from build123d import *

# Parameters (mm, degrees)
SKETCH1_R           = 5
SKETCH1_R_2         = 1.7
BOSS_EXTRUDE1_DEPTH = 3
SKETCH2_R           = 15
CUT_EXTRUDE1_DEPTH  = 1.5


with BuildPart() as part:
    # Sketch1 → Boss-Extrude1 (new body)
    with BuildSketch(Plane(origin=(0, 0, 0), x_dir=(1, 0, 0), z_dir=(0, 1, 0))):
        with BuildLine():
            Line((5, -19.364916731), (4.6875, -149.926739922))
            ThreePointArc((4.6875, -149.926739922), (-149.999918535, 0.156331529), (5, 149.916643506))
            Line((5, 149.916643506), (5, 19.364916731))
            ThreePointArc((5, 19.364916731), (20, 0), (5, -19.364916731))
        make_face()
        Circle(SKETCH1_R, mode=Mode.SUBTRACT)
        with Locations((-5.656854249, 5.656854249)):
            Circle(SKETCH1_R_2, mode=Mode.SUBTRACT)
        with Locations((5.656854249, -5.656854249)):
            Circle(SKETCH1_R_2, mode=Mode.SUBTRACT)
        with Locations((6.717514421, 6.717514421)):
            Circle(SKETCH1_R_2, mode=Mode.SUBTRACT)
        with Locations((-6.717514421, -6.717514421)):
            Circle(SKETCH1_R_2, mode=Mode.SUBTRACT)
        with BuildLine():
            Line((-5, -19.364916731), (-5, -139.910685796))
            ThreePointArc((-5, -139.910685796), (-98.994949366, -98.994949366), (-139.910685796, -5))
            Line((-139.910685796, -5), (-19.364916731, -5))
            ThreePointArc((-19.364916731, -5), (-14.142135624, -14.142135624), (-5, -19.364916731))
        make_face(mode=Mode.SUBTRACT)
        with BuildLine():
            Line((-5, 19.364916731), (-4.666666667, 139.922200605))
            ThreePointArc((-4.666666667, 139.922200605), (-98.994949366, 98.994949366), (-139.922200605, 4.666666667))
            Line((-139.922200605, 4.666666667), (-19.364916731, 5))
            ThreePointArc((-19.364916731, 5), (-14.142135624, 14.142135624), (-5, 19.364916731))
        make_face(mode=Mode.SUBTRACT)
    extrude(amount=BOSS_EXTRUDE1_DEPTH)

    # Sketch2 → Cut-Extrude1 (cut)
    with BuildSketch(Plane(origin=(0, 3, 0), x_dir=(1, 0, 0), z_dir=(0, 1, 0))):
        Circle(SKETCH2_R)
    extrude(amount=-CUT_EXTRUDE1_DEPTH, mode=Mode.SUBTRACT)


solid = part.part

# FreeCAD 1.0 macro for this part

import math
import FreeCAD as App
import Part
import Sketcher

V = App.Vector
Q = App.Units.Quantity

doc = App.newDocument("Part")
body = doc.addObject("PartDesign::Body", "Body")

# Sketch on XZ plane
sketch1 = body.newObject("Sketcher::SketchObject", "Sketch")
sketch1.AttachmentSupport = (doc.getObject("XZ_Plane"), [""])
sketch1.MapMode = "FlatFace"
sketch1.addGeometry(Part.LineSegment(V(4.6875, 149.92674, 0), V(5, 19.364917, 0)), False)
sketch1.addGeometry(Part.ArcOfCircle(Part.Circle(V(0, 0, 0), V(0, 0, 1), 20), math.radians(-75.522488), math.radians(75.522488)), False)
sketch1.addGeometry(Part.LineSegment(V(5, -19.364917, 0), V(5, -149.916644, 0)), False)
sketch1.addGeometry(Part.ArcOfCircle(Part.Circle(V(0, 0, 0), V(0, 0, 1), 150), math.radians(88.209215), math.radians(271.910213)), False)
sketch1.addGeometry(Part.Circle(V(5.656854, 5.656854, 0), V(0, 0, 1), 1.7), False)
sketch1.addGeometry(Part.Circle(V(0, 0, 0), V(0, 0, 1), 5), False)
sketch1.addGeometry(Part.Circle(V(-6.717514, 6.717514, 0), V(0, 0, 1), 1.7), False)
sketch1.addGeometry(Part.LineSegment(V(-5, 19.364917, 0), V(-5, 139.910686, 0)), False)
sketch1.addGeometry(Part.ArcOfCircle(Part.Circle(V(0, 0, 0), V(0, 0, 1), 140), math.radians(92.046713), math.radians(177.953287)), False)
sketch1.addGeometry(Part.LineSegment(V(-139.910686, 5, 0), V(-19.364917, 5, 0)), False)
sketch1.addGeometry(Part.ArcOfCircle(Part.Circle(V(0, 0, 0), V(0, 0, 1), 20), math.radians(104.477512), math.radians(165.522488)), False)
sketch1.addGeometry(Part.Circle(V(6.717514, -6.717514, 0), V(0, 0, 1), 1.7), False)
sketch1.addGeometry(Part.Circle(V(-5.656854, -5.656854, 0), V(0, 0, 1), 1.7), False)
sketch1.addGeometry(Part.ArcOfCircle(Part.Circle(V(0, 0, 0), V(0, 0, 1), 20), math.radians(-165.522488), math.radians(-104.477512)), False)
sketch1.addGeometry(Part.LineSegment(V(-19.364917, -5, 0), V(-139.922201, -4.666667, 0)), False)
sketch1.addGeometry(Part.ArcOfCircle(Part.Circle(V(0, 0, 0), V(0, 0, 1), 140), math.radians(-178.089787), math.radians(-91.910213)), False)
sketch1.addGeometry(Part.LineSegment(V(-4.666667, -139.922201, 0), V(-5, -19.364917, 0)), False)
sketch1.addConstraint(Sketcher.Constraint("Coincident", 0, 2, 1, 2))
sketch1.addConstraint(Sketcher.Constraint("Coincident", 1, 1, 2, 1))
sketch1.addConstraint(Sketcher.Constraint("Coincident", 2, 2, 3, 2))
sketch1.addConstraint(Sketcher.Constraint("Coincident", 3, 1, 0, 1))
sketch1.addConstraint(Sketcher.Constraint("Coincident", 7, 2, 8, 1))
sketch1.addConstraint(Sketcher.Constraint("Coincident", 8, 2, 9, 1))
sketch1.addConstraint(Sketcher.Constraint("Coincident", 9, 2, 10, 2))
sketch1.addConstraint(Sketcher.Constraint("Coincident", 10, 1, 7, 1))
sketch1.addConstraint(Sketcher.Constraint("Coincident", 13, 1, 14, 1))
sketch1.addConstraint(Sketcher.Constraint("Coincident", 14, 2, 15, 1))
sketch1.addConstraint(Sketcher.Constraint("Coincident", 15, 2, 16, 1))
sketch1.addConstraint(Sketcher.Constraint("Coincident", 16, 2, 13, 2))
sketch1.addConstraint(Sketcher.Constraint("Vertical", 2))
sketch1.addConstraint(Sketcher.Constraint("Vertical", 7))
sketch1.addConstraint(Sketcher.Constraint("Horizontal", 9))
sketch1.addConstraint(Sketcher.Constraint("Coincident", 1, 3, -1, 1))
sketch1.addConstraint(Sketcher.Constraint("Coincident", 3, 3, -1, 1))
sketch1.addConstraint(Sketcher.Constraint("Coincident", 5, 3, -1, 1))
sketch1.addConstraint(Sketcher.Constraint("Coincident", 8, 3, -1, 1))
sketch1.addConstraint(Sketcher.Constraint("Coincident", 10, 3, -1, 1))
sketch1.addConstraint(Sketcher.Constraint("Coincident", 13, 3, -1, 1))
sketch1.addConstraint(Sketcher.Constraint("Coincident", 15, 3, -1, 1))
sketch1.addConstraint(Sketcher.Constraint("Equal", 4, 6))
sketch1.addConstraint(Sketcher.Constraint("Equal", 1, 10))
sketch1.addConstraint(Sketcher.Constraint("Equal", 6, 11))
sketch1.addConstraint(Sketcher.Constraint("Equal", 11, 12))
sketch1.addConstraint(Sketcher.Constraint("Equal", 10, 13))
sketch1.addConstraint(Sketcher.Constraint("Equal", 8, 15))
sketch1.addConstraint(Sketcher.Constraint("Symmetric", 6, 3, 11, 3, -1, 1))
sketch1.addConstraint(Sketcher.Constraint("Symmetric", 4, 3, 12, 3, -1, 1))
sketch1.addConstraint(Sketcher.Constraint("Horizontal", 0, 2, 10, 1))
sketch1.addConstraint(Sketcher.Constraint("Horizontal", 1, 1, 16, 2))
sketch1.addConstraint(Sketcher.Constraint("Vertical", 0, 2, 1, 1))
sketch1.addConstraint(Sketcher.Constraint("Vertical", 9, 2, 13, 1))
sketch1.addConstraint(Sketcher.Constraint("Equal", 9, 7))
sketch1.addConstraint(Sketcher.Constraint("Equal", 14, 16))
sketch1.addConstraint(Sketcher.Constraint("Diameter", 5, Q("10 mm")))
sketch1.addConstraint(Sketcher.Constraint("Radius", 1, Q("20 mm")))
sketch1.addConstraint(Sketcher.Constraint("Radius", 3, Q("150 mm")))
sketch1.addConstraint(Sketcher.Constraint("Radius", 8, Q("140 mm")))
sketch1.addConstraint(Sketcher.Constraint("Diameter", 4, Q("3.4 mm")))
sketch1.addConstraint(Sketcher.Constraint("DistanceX", -1, 1, 0, 2, Q("5 mm")))
sketch1.addConstraint(Sketcher.Constraint("DistanceX", -1, 1, 3, 1, Q("4.6875 mm")))
sketch1.addConstraint(Sketcher.Constraint("DistanceX", 14, 2, -1, 1, Q("139.922201 mm")))
sketch1.addConstraint(Sketcher.Constraint("DistanceX", 6, 3, 4, 3, Q("12.374369 mm")))
sketch1.addConstraint(Sketcher.Constraint("DistanceY", 4, 3, 6, 3, Q("1.06066 mm")))
sketch1.addConstraint(Sketcher.Constraint("DistanceY", 2, 2, 11, 3, Q("143.199129 mm")))
sketch1.addConstraint(Sketcher.Constraint("DistanceX", 8, 2, 6, 3, Q("133.193171 mm")))
pad1 = body.newObject("PartDesign::Pad", "Pad")
pad1.Profile = sketch1
pad1.Length = 3
pad1.Reversed = True

# Sketch on XZ plane
sketch2 = body.newObject("Sketcher::SketchObject", "Sketch001")
sketch2.AttachmentSupport = (doc.getObject("XZ_Plane"), [""])
sketch2.MapMode = "FlatFace"
sketch2.AttachmentOffset = App.Placement(V(0, 0, -3), App.Rotation())
sketch2.addGeometry(Part.Circle(V(0, 0, 0), V(0, 0, 1), 15), False)
sketch2.addConstraint(Sketcher.Constraint("Coincident", 0, 3, -1, 1))
sketch2.addConstraint(Sketcher.Constraint("Diameter", 0, Q("30 mm")))
pocket1 = body.newObject("PartDesign::Pocket", "Pocket")
pocket1.Profile = sketch2
pocket1.Length = 1.5
pocket1.Reversed = True

doc.recompute()
